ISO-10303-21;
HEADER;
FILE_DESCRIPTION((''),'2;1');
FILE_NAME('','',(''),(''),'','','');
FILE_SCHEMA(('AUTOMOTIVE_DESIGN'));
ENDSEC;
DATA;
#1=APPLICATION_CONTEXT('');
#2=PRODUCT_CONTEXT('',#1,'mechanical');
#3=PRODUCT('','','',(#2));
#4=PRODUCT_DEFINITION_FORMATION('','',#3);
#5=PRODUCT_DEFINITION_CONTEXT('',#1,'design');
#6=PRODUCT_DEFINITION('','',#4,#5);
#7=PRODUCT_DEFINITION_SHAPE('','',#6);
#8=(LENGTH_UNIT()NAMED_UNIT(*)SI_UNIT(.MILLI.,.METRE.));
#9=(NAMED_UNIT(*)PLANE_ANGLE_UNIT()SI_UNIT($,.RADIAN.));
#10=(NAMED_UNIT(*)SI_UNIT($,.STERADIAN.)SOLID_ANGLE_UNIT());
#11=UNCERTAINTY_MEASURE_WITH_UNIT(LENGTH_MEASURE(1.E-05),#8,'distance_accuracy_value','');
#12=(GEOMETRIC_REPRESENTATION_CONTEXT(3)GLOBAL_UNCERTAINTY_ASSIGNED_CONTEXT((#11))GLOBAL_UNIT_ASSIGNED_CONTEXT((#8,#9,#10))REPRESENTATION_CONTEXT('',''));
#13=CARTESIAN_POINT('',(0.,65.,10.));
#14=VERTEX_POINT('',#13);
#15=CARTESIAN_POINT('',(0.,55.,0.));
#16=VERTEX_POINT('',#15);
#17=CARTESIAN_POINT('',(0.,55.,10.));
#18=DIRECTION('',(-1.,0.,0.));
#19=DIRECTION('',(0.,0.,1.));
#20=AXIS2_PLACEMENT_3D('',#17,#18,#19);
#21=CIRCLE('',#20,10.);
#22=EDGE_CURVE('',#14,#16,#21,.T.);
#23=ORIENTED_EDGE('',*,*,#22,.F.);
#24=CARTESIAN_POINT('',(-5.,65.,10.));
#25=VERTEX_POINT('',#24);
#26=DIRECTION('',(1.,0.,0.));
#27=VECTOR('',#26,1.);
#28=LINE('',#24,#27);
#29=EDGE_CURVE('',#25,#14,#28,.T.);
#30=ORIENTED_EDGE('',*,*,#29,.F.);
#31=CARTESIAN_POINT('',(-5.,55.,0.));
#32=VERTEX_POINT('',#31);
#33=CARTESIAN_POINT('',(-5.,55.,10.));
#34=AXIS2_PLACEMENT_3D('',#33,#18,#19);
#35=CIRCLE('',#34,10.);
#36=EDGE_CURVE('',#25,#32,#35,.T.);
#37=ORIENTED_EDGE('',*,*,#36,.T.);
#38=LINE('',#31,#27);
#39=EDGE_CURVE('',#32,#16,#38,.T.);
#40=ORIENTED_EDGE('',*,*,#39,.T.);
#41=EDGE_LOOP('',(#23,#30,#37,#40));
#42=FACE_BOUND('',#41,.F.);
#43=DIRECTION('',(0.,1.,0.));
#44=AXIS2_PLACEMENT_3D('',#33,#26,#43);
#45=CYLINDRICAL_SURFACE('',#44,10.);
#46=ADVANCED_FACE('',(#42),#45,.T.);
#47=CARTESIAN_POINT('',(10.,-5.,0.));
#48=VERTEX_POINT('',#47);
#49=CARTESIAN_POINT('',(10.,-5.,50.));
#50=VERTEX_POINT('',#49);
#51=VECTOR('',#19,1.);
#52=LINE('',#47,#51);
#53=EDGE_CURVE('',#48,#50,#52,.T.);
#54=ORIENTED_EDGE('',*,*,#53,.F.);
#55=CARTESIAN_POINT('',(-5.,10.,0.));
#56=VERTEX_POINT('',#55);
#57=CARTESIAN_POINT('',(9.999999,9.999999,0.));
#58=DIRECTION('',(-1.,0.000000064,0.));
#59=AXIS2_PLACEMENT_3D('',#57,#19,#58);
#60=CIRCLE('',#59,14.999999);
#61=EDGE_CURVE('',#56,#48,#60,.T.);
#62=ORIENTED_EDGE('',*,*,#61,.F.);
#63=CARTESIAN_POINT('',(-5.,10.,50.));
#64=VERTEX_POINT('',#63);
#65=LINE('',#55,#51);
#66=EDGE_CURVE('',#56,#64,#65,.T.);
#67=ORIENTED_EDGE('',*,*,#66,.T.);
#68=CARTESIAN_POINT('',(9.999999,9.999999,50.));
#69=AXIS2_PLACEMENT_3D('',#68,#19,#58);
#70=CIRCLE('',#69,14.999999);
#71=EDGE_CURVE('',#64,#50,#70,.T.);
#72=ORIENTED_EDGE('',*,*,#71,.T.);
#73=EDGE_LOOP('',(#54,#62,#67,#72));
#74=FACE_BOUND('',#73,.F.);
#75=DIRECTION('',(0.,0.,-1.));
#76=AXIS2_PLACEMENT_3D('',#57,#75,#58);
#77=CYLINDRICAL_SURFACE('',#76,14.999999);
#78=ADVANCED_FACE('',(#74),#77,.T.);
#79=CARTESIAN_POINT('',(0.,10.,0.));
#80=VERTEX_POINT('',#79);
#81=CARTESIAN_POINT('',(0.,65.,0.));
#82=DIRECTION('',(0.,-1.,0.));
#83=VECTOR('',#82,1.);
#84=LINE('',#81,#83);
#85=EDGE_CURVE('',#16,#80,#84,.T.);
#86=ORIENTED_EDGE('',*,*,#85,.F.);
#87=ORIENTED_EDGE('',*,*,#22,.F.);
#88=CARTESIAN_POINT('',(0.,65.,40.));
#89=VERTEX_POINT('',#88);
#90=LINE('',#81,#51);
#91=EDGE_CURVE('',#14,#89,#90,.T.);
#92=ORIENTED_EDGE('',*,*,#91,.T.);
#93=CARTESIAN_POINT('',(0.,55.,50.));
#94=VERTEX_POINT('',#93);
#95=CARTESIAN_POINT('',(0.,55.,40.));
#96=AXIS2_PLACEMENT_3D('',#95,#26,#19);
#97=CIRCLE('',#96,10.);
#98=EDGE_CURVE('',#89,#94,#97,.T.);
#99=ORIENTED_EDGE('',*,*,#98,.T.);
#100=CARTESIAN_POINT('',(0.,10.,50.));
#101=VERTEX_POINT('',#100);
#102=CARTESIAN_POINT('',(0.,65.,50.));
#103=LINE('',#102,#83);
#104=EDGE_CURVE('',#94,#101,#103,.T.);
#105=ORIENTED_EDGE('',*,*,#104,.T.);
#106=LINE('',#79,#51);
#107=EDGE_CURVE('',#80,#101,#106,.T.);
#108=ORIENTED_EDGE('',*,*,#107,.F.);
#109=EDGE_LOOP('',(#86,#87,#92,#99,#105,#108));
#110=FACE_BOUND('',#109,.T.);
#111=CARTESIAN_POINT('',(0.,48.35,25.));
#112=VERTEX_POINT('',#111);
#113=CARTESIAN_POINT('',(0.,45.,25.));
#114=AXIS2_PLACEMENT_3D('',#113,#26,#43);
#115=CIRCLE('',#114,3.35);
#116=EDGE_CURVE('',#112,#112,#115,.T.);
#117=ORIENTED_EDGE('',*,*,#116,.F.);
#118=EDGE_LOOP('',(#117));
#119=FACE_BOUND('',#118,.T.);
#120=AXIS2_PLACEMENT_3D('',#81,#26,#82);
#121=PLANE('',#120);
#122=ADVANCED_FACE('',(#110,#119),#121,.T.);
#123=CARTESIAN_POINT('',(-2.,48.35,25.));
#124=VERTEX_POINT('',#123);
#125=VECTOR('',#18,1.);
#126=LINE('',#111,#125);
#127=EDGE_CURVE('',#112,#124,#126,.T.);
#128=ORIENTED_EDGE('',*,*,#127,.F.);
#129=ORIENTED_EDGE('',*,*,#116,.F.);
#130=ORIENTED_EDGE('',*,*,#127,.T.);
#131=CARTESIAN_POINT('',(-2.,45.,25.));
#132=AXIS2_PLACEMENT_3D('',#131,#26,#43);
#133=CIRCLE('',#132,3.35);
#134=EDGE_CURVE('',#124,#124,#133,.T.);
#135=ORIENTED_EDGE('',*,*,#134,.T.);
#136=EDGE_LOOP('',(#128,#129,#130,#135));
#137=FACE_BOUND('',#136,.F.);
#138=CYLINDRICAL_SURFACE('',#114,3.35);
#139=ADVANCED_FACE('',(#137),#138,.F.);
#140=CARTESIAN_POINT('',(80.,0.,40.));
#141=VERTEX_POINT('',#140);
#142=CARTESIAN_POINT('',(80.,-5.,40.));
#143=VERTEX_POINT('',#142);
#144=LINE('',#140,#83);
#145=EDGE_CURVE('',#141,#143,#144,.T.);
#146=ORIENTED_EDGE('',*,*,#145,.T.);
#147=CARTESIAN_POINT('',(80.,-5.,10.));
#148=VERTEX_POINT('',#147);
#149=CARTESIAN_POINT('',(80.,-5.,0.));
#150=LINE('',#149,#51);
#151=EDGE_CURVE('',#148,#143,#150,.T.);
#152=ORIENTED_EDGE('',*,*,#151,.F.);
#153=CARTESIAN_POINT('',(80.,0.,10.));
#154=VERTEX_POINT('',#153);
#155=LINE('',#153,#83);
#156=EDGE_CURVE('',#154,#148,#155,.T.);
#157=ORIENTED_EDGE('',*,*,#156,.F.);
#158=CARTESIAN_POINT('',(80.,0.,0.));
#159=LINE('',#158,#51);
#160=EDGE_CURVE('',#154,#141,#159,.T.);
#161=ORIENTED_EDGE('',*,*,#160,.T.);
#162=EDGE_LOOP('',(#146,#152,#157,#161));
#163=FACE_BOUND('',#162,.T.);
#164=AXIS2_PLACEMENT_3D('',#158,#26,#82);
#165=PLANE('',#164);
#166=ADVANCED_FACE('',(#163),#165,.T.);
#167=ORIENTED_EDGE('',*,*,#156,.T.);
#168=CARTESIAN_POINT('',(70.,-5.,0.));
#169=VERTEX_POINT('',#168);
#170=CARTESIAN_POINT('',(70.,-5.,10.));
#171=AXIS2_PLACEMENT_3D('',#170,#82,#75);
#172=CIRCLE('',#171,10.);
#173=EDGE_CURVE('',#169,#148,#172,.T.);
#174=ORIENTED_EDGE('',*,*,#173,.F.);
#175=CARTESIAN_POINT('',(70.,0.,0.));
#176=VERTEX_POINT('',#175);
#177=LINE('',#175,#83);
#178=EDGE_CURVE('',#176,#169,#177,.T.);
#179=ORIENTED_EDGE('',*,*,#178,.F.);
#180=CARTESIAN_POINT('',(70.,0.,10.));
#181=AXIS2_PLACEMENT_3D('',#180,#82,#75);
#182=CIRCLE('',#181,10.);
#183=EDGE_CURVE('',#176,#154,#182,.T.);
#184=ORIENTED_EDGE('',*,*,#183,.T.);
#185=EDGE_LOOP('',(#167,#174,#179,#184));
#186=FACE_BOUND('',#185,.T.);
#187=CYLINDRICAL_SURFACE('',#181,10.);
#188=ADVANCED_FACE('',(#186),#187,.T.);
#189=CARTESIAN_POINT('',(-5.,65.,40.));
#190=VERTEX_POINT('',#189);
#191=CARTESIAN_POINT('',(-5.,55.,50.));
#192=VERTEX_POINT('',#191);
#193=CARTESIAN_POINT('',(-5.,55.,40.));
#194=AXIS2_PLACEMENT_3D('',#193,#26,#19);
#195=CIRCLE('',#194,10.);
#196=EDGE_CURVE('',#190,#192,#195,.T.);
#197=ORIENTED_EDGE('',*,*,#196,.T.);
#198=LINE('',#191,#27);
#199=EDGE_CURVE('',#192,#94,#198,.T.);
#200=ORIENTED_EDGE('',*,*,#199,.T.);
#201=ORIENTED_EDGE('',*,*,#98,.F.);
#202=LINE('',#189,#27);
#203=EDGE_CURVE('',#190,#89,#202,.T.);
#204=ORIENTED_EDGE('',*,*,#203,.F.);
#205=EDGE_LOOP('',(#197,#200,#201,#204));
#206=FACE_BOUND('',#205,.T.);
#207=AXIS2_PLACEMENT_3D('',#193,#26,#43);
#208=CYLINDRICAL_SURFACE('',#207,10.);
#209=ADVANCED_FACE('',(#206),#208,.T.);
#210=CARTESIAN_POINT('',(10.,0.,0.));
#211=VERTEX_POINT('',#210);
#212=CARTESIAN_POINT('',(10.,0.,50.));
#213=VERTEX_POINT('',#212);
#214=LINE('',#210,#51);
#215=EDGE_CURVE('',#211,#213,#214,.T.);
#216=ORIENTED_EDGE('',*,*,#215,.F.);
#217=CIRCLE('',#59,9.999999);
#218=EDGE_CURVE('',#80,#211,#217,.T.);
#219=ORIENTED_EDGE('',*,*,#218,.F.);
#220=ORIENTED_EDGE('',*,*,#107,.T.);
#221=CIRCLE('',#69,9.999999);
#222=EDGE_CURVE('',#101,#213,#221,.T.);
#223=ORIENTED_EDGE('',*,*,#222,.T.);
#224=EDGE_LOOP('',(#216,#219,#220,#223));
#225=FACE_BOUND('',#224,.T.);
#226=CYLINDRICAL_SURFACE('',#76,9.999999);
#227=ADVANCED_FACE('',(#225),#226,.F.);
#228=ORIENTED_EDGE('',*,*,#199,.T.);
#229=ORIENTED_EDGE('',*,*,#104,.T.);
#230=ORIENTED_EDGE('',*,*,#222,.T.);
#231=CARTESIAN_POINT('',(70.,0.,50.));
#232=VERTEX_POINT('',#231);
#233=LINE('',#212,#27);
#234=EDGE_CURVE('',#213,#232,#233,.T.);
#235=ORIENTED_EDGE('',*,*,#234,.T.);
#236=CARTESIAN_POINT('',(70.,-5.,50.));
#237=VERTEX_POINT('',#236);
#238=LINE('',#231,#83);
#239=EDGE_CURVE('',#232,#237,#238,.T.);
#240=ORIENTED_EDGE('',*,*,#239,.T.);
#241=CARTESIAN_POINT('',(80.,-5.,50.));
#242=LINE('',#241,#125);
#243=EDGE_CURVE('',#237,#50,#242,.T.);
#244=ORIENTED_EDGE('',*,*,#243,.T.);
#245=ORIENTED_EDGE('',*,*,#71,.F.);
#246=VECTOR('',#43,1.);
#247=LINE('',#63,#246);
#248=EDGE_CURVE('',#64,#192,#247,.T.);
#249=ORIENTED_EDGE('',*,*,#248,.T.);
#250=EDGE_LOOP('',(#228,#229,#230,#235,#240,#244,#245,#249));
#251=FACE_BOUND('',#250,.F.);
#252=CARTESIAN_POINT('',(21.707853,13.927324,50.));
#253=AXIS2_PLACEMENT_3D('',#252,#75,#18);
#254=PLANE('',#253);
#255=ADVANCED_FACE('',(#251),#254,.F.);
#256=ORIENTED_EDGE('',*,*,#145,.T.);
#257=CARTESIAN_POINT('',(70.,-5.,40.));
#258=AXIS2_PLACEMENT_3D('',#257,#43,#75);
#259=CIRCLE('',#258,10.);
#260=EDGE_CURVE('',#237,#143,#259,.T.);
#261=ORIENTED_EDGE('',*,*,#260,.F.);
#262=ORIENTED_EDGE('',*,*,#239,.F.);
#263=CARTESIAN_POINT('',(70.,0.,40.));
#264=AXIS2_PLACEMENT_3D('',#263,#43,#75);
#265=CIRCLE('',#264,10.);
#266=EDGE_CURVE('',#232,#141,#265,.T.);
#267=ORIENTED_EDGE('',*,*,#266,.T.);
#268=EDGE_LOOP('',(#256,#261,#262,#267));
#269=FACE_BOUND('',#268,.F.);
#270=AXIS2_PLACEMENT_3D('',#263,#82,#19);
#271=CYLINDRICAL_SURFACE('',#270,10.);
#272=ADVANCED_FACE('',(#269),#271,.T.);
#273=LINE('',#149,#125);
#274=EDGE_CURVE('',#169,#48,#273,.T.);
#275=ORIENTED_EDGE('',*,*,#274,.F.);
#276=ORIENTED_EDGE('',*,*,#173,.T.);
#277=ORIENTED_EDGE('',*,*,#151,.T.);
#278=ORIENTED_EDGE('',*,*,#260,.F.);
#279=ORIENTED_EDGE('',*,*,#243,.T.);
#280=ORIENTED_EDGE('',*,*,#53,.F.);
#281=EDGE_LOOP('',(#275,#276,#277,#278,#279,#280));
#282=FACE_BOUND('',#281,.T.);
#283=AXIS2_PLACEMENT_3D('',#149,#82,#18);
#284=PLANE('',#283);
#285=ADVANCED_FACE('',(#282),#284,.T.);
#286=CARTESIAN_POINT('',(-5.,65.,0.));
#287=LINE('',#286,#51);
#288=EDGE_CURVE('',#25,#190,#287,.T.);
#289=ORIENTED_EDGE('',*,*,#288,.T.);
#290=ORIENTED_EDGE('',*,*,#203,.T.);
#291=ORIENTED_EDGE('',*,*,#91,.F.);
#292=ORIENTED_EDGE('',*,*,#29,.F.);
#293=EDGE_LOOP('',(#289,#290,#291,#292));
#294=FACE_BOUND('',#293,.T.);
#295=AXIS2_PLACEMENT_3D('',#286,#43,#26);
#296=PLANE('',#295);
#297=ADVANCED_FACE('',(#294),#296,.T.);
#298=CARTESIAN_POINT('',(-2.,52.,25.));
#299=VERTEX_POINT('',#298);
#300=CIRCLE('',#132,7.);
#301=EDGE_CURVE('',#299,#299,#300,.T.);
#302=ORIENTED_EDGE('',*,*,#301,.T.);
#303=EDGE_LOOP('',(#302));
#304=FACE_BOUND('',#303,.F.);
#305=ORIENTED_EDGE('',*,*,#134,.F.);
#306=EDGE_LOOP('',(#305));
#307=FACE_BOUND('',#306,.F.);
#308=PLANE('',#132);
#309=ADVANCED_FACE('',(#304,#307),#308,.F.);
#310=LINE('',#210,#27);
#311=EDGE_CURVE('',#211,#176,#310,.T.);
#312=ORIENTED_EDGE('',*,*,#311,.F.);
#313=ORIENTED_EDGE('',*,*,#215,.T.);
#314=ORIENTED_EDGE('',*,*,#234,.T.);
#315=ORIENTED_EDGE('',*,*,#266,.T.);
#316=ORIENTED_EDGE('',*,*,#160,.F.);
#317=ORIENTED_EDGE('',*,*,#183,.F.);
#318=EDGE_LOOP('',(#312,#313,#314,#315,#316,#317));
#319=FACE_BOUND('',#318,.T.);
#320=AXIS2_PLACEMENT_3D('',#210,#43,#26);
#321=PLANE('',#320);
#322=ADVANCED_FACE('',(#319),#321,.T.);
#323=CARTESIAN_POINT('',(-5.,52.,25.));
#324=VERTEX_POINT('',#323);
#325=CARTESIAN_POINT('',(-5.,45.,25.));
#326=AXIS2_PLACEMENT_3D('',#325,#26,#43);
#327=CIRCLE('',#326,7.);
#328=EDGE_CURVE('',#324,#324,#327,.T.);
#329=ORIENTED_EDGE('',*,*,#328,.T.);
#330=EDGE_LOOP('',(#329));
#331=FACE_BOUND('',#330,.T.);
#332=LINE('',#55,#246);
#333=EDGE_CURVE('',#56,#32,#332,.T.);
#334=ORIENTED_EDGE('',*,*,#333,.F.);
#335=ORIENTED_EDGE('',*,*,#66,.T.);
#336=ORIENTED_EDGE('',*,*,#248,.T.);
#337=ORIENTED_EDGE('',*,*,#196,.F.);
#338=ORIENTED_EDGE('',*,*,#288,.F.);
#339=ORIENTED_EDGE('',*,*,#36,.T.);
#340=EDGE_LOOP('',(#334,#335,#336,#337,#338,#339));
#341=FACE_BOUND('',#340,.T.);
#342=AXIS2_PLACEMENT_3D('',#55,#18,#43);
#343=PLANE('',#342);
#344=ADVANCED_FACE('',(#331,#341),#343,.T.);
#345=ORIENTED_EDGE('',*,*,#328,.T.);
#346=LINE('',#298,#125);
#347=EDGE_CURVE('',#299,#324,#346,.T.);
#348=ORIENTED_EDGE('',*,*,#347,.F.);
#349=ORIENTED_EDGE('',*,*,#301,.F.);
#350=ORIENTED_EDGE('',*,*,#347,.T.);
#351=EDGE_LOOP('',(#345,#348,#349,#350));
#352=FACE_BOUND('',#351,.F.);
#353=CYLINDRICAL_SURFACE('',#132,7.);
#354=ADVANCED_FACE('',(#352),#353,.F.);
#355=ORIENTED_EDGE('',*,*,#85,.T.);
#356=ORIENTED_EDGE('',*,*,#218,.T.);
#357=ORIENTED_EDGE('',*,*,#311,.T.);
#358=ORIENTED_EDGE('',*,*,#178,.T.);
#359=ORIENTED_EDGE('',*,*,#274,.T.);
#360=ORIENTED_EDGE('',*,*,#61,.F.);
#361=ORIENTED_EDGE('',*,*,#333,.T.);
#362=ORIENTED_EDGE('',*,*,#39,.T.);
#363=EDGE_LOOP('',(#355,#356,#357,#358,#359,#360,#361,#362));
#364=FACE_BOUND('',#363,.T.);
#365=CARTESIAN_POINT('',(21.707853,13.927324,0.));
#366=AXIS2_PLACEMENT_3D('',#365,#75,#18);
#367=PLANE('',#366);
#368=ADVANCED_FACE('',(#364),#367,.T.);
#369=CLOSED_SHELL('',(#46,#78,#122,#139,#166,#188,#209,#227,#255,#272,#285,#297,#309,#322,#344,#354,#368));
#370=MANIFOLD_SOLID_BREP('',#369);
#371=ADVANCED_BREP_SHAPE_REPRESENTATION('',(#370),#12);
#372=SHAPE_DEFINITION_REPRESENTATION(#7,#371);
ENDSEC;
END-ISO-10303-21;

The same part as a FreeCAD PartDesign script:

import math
import FreeCAD as App
import Part
import Sketcher

V = App.Vector


def edges_at(feature, points):
    """Names of the edges that pass closest to the given points."""
    edges = feature.Shape.Edges
    near = lambda p: min(range(len(edges)), key=lambda i: edges[i].distToShape(Part.Vertex(*p))[0])
    return sorted({f"Edge{near(p) + 1}" for p in points})

doc = App.newDocument("Part")
body = doc.addObject("PartDesign::Body", "Body")

sketch1 = body.newObject("Sketcher::SketchObject", "Sketch")
sketch1.AttachmentSupport = (doc.getObject("XY_Plane"), [""])
sketch1.MapMode = "FlatFace"
sketch1.addGeometry(Part.LineSegment(V(0, 10, 0), V(0, 65, 0)), False)
sketch1.addGeometry(Part.LineSegment(V(0, 65, 0), V(-5, 65, 0)), False)
sketch1.addGeometry(Part.LineSegment(V(-5, 65, 0), V(-5, 10, 0)), False)
sketch1.addGeometry(Part.ArcOfCircle(Part.Circle(V(10, 10, 0), V(0, 0, 1), 15), math.radians(180), math.radians(270)), False)
sketch1.addGeometry(Part.LineSegment(V(10, -5, 0), V(80, -5, 0)), False)
sketch1.addGeometry(Part.LineSegment(V(80, -5, 0), V(80, 0, 0)), False)
sketch1.addGeometry(Part.LineSegment(V(80, 0, 0), V(10, 0, 0)), False)
sketch1.addGeometry(Part.ArcOfCircle(Part.Circle(V(10, 10, 0), V(0, 0, 1), 10), math.radians(180), math.radians(270)), False)
sketch1.addConstraint(Sketcher.Constraint("Coincident", 0, 2, 1, 1))
sketch1.addConstraint(Sketcher.Constraint("Coincident", 1, 2, 2, 1))
sketch1.addConstraint(Sketcher.Constraint("Tangent", 2, 2, 3, 1))
sketch1.addConstraint(Sketcher.Constraint("Tangent", 3, 2, 4, 1))
sketch1.addConstraint(Sketcher.Constraint("Coincident", 4, 2, 5, 1))
sketch1.addConstraint(Sketcher.Constraint("Coincident", 5, 2, 6, 1))
sketch1.addConstraint(Sketcher.Constraint("Tangent", 6, 2, 7, 2))
sketch1.addConstraint(Sketcher.Constraint("Tangent", 7, 1, 0, 1))
sketch1.addConstraint(Sketcher.Constraint("Vertical", 0))
sketch1.addConstraint(Sketcher.Constraint("Horizontal", 1))
sketch1.addConstraint(Sketcher.Constraint("Vertical", 2))
sketch1.addConstraint(Sketcher.Constraint("Horizontal", 4))
sketch1.addConstraint(Sketcher.Constraint("Vertical", 5))
sketch1.addConstraint(Sketcher.Constraint("Horizontal", 6))
sketch1.addConstraint(Sketcher.Constraint("Coincident", 7, 3, 3, 3))
sketch1.addConstraint(Sketcher.Constraint("PointOnObject", 0, 2, -2))
sketch1.addConstraint(Sketcher.Constraint("PointOnObject", 5, 2, -1))
sketch1.addConstraint(Sketcher.Constraint("Radius", 3, 14.999999))
sketch1.addConstraint(Sketcher.Constraint("Radius", 7, 9.999999))
sketch1.addConstraint(Sketcher.Constraint("DistanceX", 4, 1, 4, 2, 70.0))
sketch1.addConstraint(Sketcher.Constraint("DistanceY", 0, 1, 0, 2, 55.0))
pad1 = body.newObject("PartDesign::Pad", "Pad")
pad1.Profile = sketch1
pad1.Length = 50

sketch2 = body.newObject("Sketcher::SketchObject", "Sketch001")
sketch2.AttachmentSupport = (doc.getObject("YZ_Plane"), [""])
sketch2.MapMode = "FlatFace"
sketch2.addGeometry(Part.Circle(V(45, 25, 0), V(0, 0, 1), 3.4), False)
sketch2.addConstraint(Sketcher.Constraint("Diameter", 0, 6.7))
sketch2.addConstraint(Sketcher.Constraint("DistanceX", -1, 1, 0, 3, 45.0))
sketch2.addConstraint(Sketcher.Constraint("DistanceY", -1, 1, 0, 3, 25.0))
pocket1 = body.newObject("PartDesign::Pocket", "Pocket")
pocket1.Profile = sketch2
pocket1.Type = "ThroughAll"
doc.recompute()

fillet = body.newObject("PartDesign::Fillet", "Fillet")
fillet.Base = (pocket1, edges_at(pocket1, [
    (-2.5, 65, 0),
    (-2.5, 65, 50),
    (80, -2.5, 50),
    (80, -2.5, 0),
]))
fillet.Radius = 10

sketch3 = body.newObject("Sketcher::SketchObject", "Sketch002")
sketch3.AttachmentSupport = (doc.getObject("YZ_Plane"), [""])
sketch3.MapMode = "FlatFace"
sketch3.AttachmentOffset = App.Placement(V(0, 0, -2), App.Rotation())
sketch3.addGeometry(Part.Circle(V(45, 25, 0), V(0, 0, 1), 7), False)
sketch3.addConstraint(Sketcher.Constraint("Diameter", 0, 14.0))
sketch3.addConstraint(Sketcher.Constraint("DistanceX", -1, 1, 0, 3, 45.0))
sketch3.addConstraint(Sketcher.Constraint("DistanceY", -1, 1, 0, 3, 25.0))
pocket2 = body.newObject("PartDesign::Pocket", "Pocket001")
pocket2.Profile = sketch3
pocket2.Type = "ThroughAll"

doc.recompute()
